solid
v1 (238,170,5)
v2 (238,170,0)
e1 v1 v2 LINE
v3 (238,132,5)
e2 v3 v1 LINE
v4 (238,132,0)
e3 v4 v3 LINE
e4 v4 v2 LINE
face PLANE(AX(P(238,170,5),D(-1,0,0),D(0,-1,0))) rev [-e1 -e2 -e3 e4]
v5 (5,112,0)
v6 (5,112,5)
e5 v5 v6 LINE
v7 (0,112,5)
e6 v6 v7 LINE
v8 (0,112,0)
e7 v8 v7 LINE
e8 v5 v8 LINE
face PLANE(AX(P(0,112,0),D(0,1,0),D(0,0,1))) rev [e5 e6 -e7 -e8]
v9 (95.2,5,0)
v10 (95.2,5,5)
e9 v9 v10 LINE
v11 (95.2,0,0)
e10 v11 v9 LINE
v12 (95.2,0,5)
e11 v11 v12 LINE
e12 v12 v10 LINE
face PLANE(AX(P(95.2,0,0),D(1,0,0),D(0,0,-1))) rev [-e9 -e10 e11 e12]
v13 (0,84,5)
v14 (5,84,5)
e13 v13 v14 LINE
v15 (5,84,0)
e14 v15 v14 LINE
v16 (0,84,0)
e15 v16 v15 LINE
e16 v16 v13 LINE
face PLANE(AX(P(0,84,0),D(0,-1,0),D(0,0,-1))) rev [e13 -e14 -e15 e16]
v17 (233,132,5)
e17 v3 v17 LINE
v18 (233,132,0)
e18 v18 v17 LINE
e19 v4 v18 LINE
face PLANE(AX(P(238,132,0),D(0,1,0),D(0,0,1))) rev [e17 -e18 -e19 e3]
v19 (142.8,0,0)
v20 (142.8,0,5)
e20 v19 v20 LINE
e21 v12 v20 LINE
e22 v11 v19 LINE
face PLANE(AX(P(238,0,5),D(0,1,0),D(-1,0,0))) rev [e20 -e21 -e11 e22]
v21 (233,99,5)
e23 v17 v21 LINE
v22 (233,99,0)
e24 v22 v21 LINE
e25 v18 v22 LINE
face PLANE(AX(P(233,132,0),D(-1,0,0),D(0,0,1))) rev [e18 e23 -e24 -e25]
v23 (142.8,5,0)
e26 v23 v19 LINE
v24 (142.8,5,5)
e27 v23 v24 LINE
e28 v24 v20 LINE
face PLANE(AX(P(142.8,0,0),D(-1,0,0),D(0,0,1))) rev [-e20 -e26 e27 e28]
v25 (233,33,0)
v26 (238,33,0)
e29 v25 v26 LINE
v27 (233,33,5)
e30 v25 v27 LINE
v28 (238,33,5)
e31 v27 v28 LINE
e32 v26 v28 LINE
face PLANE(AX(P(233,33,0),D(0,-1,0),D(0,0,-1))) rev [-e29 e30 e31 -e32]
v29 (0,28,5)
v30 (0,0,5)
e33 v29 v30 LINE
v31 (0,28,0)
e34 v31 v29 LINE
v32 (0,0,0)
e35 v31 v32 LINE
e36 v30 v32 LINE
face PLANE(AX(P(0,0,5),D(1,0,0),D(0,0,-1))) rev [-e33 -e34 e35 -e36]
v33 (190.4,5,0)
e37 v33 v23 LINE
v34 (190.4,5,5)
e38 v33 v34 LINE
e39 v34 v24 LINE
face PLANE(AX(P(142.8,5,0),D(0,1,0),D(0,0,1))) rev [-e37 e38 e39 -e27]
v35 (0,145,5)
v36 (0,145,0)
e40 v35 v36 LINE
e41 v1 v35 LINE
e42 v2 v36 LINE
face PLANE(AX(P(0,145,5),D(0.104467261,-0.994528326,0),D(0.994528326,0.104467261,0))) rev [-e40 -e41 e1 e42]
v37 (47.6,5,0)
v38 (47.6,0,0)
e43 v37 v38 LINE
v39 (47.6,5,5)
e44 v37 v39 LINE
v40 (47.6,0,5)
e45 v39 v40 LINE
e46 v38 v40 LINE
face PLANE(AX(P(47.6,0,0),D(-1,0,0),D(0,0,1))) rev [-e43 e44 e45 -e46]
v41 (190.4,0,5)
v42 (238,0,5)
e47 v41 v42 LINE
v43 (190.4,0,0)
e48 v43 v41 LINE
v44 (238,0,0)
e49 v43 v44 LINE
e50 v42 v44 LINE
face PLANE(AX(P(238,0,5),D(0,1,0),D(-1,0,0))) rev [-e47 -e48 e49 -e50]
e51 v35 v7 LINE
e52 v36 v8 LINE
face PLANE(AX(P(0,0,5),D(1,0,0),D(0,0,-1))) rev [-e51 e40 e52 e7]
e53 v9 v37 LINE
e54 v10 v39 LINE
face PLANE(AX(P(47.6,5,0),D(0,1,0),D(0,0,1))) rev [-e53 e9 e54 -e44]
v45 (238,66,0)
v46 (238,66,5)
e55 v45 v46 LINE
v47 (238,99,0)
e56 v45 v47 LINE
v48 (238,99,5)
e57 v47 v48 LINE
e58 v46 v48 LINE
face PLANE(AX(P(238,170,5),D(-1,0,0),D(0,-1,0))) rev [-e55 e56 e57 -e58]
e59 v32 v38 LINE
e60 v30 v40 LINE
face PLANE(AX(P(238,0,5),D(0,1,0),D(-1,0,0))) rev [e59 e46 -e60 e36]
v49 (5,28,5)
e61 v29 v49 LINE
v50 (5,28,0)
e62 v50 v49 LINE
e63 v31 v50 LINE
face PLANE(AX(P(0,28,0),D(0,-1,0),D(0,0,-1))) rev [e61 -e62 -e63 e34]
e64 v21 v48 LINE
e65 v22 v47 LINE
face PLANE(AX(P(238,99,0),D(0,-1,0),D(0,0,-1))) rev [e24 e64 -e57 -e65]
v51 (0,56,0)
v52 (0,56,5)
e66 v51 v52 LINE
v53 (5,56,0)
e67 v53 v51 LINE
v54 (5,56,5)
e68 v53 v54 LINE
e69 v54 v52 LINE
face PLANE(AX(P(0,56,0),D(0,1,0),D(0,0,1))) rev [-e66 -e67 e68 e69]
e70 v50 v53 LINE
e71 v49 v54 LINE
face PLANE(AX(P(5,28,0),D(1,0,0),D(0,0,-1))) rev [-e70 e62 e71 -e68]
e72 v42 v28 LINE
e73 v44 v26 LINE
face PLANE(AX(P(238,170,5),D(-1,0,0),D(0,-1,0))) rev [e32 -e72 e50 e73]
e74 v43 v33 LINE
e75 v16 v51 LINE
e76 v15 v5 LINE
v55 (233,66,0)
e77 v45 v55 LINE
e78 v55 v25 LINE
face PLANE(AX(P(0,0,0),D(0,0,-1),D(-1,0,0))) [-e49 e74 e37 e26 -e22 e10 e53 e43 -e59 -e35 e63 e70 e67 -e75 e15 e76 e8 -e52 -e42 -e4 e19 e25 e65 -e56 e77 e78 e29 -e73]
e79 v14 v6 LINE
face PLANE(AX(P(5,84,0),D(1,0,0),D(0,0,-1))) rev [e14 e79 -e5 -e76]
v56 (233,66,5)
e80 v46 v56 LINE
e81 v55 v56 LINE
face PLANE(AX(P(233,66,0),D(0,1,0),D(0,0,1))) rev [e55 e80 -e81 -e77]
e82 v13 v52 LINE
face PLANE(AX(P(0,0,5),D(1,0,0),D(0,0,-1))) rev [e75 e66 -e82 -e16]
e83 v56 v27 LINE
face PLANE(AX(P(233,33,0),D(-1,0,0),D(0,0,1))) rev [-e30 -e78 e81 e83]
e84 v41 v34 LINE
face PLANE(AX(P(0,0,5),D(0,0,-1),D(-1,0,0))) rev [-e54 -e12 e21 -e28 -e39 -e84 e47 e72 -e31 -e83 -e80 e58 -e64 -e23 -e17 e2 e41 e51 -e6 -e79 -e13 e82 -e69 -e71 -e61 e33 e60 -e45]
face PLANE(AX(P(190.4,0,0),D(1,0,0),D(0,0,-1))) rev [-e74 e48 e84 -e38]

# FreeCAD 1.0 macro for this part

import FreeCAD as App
import Part
import Sketcher

V = App.Vector
Q = App.Units.Quantity

doc = App.newDocument("Part")
params = doc.addObject("Spreadsheet::Sheet", "Params")
for row, (alias, value) in enumerate([
    ("sketch1_width", "238 mm"),
    ("sketch1_height", "145 mm"),
    ("sketch1_height2", "170 mm"),
    ("pad1_length", "5 mm"),
    ("sketch2_width", "5 mm"),
    ("sketch2_height", "28 mm"),
    ("sketch2_height2", "33 mm"),
    ("sketch2_width2", "47.6 mm"),
    ("pocket1_length", "5 mm"),
], start=1):
    params.set(f"A{row}", alias)
    params.set(f"B{row}", "=" + value)
    params.setAlias(f"B{row}", alias)

body = doc.addObject("PartDesign::Body", "Body")

# Sketch on XY plane
sketch1 = body.newObject("Sketcher::SketchObject", "Sketch")
sketch1.AttachmentSupport = (doc.getObject("XY_Plane"), [""])
sketch1.MapMode = "FlatFace"
sketch1.addGeometry([
    Part.LineSegment(V(0, 145, 0), V(0, 0, 0)),
    Part.LineSegment(V(0, 0, 0), V(238, 0, 0)),
    Part.LineSegment(V(238, 0, 0), V(238, 170, 0)),
    Part.LineSegment(V(238, 170, 0), V(0, 145, 0)),
], False)
sketch1.addConstraint([
    Sketcher.Constraint("Coincident", 0, 2, 1, 1),
    Sketcher.Constraint("Coincident", 1, 2, 2, 1),
    Sketcher.Constraint("Coincident", 2, 2, 3, 1),
    Sketcher.Constraint("Coincident", 3, 2, 0, 1),
    Sketcher.Constraint("Vertical", 0),
    Sketcher.Constraint("Horizontal", 1),
    Sketcher.Constraint("Vertical", 2),
    Sketcher.Constraint("Coincident", 0, 2, -1, 1),
    Sketcher.Constraint("DistanceX", 1, 1, 1, 2, Q("238 mm")),
    Sketcher.Constraint("DistanceY", 0, 2, 0, 1, Q("145 mm")),
    Sketcher.Constraint("DistanceY", 2, 1, 2, 2, Q("170 mm")),
])
sketch1.setExpression("Constraints[8]", "Params.sketch1_width")
sketch1.setExpression("Constraints[9]", "Params.sketch1_height")
sketch1.setExpression("Constraints[10]", "Params.sketch1_height2")
pad1 = body.newObject("PartDesign::Pad", "Pad")
pad1.Profile = sketch1
pad1.setExpression("Length", "Params.pad1_length")

# Sketch on XY plane
sketch2 = body.newObject("Sketcher::SketchObject", "Sketch001")
sketch2.AttachmentSupport = (doc.getObject("XY_Plane"), [""])
sketch2.MapMode = "FlatFace"
sketch2.AttachmentOffset = App.Placement(V(0, 0, 5), App.Rotation())
sketch2.addGeometry([
    Part.LineSegment(V(0, 56, 0), V(0, 28, 0)),  # 0
    Part.LineSegment(V(0, 28, 0), V(5, 28, 0)),  # 1
    Part.LineSegment(V(5, 28, 0), V(5, 56, 0)),  # 2
    Part.LineSegment(V(5, 56, 0), V(0, 56, 0)),  # 3
    Part.LineSegment(V(0, 112, 0), V(0, 84, 0)),  # 4
    Part.LineSegment(V(0, 84, 0), V(5, 84, 0)),  # 5
    Part.LineSegment(V(5, 84, 0), V(5, 112, 0)),  # 6
    Part.LineSegment(V(5, 112, 0), V(0, 112, 0)),  # 7
    Part.LineSegment(V(48, 5, 0), V(48, 0, 0)),  # 8
    Part.LineSegment(V(48, 0, 0), V(95, 0, 0)),  # 9
    Part.LineSegment(V(95, 0, 0), V(95, 5, 0)),  # 10
    Part.LineSegment(V(95, 5, 0), V(48, 5, 0)),  # 11
    Part.LineSegment(V(143, 5, 0), V(143, 0, 0)),  # 12
    Part.LineSegment(V(143, 0, 0), V(190, 0, 0)),  # 13
    Part.LineSegment(V(190, 0, 0), V(190, 5, 0)),  # 14
    Part.LineSegment(V(190, 5, 0), V(143, 5, 0)),  # 15
    Part.LineSegment(V(233, 132, 0), V(233, 99, 0)),  # 16
    Part.LineSegment(V(233, 99, 0), V(238, 99, 0)),  # 17
    Part.LineSegment(V(238, 99, 0), V(238, 132, 0)),  # 18
    Part.LineSegment(V(238, 132, 0), V(233, 132, 0)),  # 19
    Part.LineSegment(V(233, 66, 0), V(233, 33, 0)),  # 20
    Part.LineSegment(V(233, 33, 0), V(238, 33, 0)),  # 21
    Part.LineSegment(V(238, 33, 0), V(238, 66, 0)),  # 22
    Part.LineSegment(V(238, 66, 0), V(233, 66, 0)),  # 23
], False)
sketch2.addConstraint([
    Sketcher.Constraint("Coincident", 0, 2, 1, 1),
    Sketcher.Constraint("Coincident", 1, 2, 2, 1),
    Sketcher.Constraint("Coincident", 2, 2, 3, 1),
    Sketcher.Constraint("Coincident", 3, 2, 0, 1),
    Sketcher.Constraint("Coincident", 4, 2, 5, 1),
    Sketcher.Constraint("Coincident", 5, 2, 6, 1),
    Sketcher.Constraint("Coincident", 6, 2, 7, 1),
    Sketcher.Constraint("Coincident", 7, 2, 4, 1),
    Sketcher.Constraint("Coincident", 8, 2, 9, 1),
    Sketcher.Constraint("Coincident", 9, 2, 10, 1),
    Sketcher.Constraint("Coincident", 10, 2, 11, 1),
    Sketcher.Constraint("Coincident", 11, 2, 8, 1),
    Sketcher.Constraint("Coincident", 12, 2, 13, 1),
    Sketcher.Constraint("Coincident", 13, 2, 14, 1),
    Sketcher.Constraint("Coincident", 14, 2, 15, 1),
    Sketcher.Constraint("Coincident", 15, 2, 12, 1),
    Sketcher.Constraint("Coincident", 16, 2, 17, 1),
    Sketcher.Constraint("Coincident", 17, 2, 18, 1),
    Sketcher.Constraint("Coincident", 18, 2, 19, 1),
    Sketcher.Constraint("Coincident", 19, 2, 16, 1),
    Sketcher.Constraint("Coincident", 20, 2, 21, 1),
    Sketcher.Constraint("Coincident", 21, 2, 22, 1),
    Sketcher.Constraint("Coincident", 22, 2, 23, 1),
    Sketcher.Constraint("Coincident", 23, 2, 20, 1),
    Sketcher.Constraint("Vertical", 0),
    Sketcher.Constraint("Horizontal", 1),
    Sketcher.Constraint("Vertical", 2),
    Sketcher.Constraint("Horizontal", 3),
    Sketcher.Constraint("Vertical", 4),
    Sketcher.Constraint("Horizontal", 5),
    Sketcher.Constraint("Vertical", 6),
    Sketcher.Constraint("Horizontal", 7),
    Sketcher.Constraint("Vertical", 8),
    Sketcher.Constraint("Horizontal", 9),
    Sketcher.Constraint("Vertical", 10),
    Sketcher.Constraint("Horizontal", 11),
    Sketcher.Constraint("Vertical", 12),
    Sketcher.Constraint("Horizontal", 13),
    Sketcher.Constraint("Vertical", 14),
    Sketcher.Constraint("Horizontal", 15),
    Sketcher.Constraint("Vertical", 16),
    Sketcher.Constraint("Horizontal", 17),
    Sketcher.Constraint("Vertical", 18),
    Sketcher.Constraint("Horizontal", 19),
    Sketcher.Constraint("Vertical", 20),
    Sketcher.Constraint("Horizontal", 21),
    Sketcher.Constraint("Vertical", 22),
    Sketcher.Constraint("Horizontal", 23),
    Sketcher.Constraint("PointOnObject", 0, 2, -2),
    Sketcher.Constraint("PointOnObject", 4, 2, -2),
    Sketcher.Constraint("PointOnObject", 8, 2, -1),
    Sketcher.Constraint("PointOnObject", 12, 2, -1),
    Sketcher.Constraint("Horizontal", 11, 2, 14, 2),
    Sketcher.Constraint("Vertical", 2, 2, 5, 2),
    Sketcher.Constraint("Vertical", 19, 2, 20, 2),
    Sketcher.Constraint("Vertical", 18, 2, 21, 2),
    Sketcher.Constraint("Equal", 11, 13),
    Sketcher.Constraint("Equal", 7, 17),
    Sketcher.Constraint("Equal", 2, 4),
    Sketcher.Constraint("Equal", 23, 8),
    Sketcher.Constraint("Equal", 18, 20),
    Sketcher.Constraint("DistanceX", 1, 1, 1, 2, Q("5 mm")),
    Sketcher.Constraint("DistanceY", 0, 2, 0, 1, Q("28 mm")),
    Sketcher.Constraint("DistanceY", 16, 2, 16, 1, Q("33 mm")),
    Sketcher.Constraint("DistanceX", 9, 1, 9, 2, Q("47.6 mm")),
    Sketcher.Constraint("DistanceY", -1, 1, 0, 2, Q("28 mm")),
    Sketcher.Constraint("DistanceY", -1, 1, 4, 2, Q("84 mm")),
    Sketcher.Constraint("DistanceX", -1, 1, 16, 2, Q("233 mm")),
    Sketcher.Constraint("DistanceY", -1, 1, 16, 2, Q("99 mm")),
    Sketcher.Constraint("DistanceY", -1, 1, 20, 2, Q("33 mm")),
    Sketcher.Constraint("DistanceX", -1, 1, 8, 2, Q("47.6 mm")),
    Sketcher.Constraint("DistanceX", -1, 1, 12, 2, Q("142.8 mm")),
])
sketch2.setExpression("Constraints[61]", "Params.sketch2_width")
sketch2.setExpression("Constraints[62]", "Params.sketch2_height")
sketch2.setExpression("Constraints[63]", "Params.sketch2_height2")
sketch2.setExpression("Constraints[64]", "Params.sketch2_width2")
pocket1 = body.newObject("PartDesign::Pocket", "Pocket")
pocket1.Profile = sketch2
pocket1.setExpression("Length", "Params.pocket1_length")

doc.recompute()
